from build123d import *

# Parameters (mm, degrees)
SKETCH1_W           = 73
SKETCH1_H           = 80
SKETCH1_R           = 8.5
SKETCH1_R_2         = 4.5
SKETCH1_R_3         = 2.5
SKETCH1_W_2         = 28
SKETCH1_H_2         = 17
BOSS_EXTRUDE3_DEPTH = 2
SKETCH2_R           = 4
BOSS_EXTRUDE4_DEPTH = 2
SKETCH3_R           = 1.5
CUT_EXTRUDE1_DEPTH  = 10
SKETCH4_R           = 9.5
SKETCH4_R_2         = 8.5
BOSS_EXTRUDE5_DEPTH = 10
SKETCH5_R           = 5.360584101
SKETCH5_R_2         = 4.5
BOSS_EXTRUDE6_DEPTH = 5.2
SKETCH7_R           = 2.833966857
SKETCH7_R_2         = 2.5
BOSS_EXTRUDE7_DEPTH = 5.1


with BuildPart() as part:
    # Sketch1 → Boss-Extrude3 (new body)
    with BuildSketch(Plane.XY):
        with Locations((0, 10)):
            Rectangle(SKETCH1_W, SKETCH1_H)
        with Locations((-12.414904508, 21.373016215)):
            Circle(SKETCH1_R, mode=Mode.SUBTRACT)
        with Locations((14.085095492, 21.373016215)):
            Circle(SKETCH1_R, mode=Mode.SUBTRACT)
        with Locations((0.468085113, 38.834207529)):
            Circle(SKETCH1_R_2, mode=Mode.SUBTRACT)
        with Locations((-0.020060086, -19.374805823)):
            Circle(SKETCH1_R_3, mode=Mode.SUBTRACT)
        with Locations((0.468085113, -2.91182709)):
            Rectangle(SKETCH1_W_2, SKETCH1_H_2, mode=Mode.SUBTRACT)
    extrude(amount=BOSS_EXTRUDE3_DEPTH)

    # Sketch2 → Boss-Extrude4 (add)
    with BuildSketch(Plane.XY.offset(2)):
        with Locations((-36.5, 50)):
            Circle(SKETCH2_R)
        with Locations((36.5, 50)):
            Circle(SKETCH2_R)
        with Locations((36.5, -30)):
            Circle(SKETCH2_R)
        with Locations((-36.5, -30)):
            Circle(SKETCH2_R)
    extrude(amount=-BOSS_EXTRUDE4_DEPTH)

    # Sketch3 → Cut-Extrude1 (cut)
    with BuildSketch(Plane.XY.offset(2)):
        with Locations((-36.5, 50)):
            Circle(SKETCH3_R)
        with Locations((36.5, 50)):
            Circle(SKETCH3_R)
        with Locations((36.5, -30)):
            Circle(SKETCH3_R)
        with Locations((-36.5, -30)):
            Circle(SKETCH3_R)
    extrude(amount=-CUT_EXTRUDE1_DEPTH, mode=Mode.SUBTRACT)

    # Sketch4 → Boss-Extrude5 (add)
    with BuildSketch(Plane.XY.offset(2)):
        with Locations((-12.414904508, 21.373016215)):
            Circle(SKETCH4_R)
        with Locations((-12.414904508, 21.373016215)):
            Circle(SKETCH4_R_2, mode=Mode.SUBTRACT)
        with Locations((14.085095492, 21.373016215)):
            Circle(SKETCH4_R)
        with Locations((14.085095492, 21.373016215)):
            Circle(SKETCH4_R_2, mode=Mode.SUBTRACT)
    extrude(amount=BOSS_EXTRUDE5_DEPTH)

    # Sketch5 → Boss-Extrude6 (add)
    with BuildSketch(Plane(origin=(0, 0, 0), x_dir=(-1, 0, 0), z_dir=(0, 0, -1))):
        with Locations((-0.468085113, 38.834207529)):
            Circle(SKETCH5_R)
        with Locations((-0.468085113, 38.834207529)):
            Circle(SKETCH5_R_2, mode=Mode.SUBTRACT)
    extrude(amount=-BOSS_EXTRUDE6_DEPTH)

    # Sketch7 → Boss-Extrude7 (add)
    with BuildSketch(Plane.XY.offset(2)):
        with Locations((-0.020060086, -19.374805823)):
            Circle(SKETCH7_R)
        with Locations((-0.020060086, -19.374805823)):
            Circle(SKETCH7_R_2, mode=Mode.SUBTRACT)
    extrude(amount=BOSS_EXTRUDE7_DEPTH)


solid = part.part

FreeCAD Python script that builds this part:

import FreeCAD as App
import Part
import Sketcher
Q = App.Units.Quantity

doc = App.newDocument("Part")
body = doc.addObject("PartDesign::Body", "Body")

# Sketch on XY plane
sketch1 = doc.addObject("Sketcher::SketchObject", "Sketch")
body.addObject(sketch1)
sketch1.AttachmentSupport = (doc.XY_Plane, [""])
sketch1.MapMode = "FlatFace"
sketch1.addGeometry(Part.LineSegment(App.Vector(-36.5, 50, 0), App.Vector(-36.5, -30, 0)), False)
sketch1.addGeometry(Part.LineSegment(App.Vector(-36.5, -30, 0), App.Vector(36.5, -30, 0)), False)
sketch1.addGeometry(Part.LineSegment(App.Vector(36.5, -30, 0), App.Vector(36.5, 50, 0)), False)
sketch1.addGeometry(Part.LineSegment(App.Vector(36.5, 50, 0), App.Vector(-36.5, 50, 0)), False)
sketch1.addGeometry(Part.Circle(App.Vector(-0.02006, -19.374806, 0), App.Vector(0, 0, 1), 2.5), False)
sketch1.addGeometry(Part.LineSegment(App.Vector(14.468085, -11.411827, 0), App.Vector(-13.531915, -11.411827, 0)), False)
sketch1.addGeometry(Part.LineSegment(App.Vector(-13.531915, -11.411827, 0), App.Vector(-13.531915, 5.588173, 0)), False)
sketch1.addGeometry(Part.LineSegment(App.Vector(-13.531915, 5.588173, 0), App.Vector(14.468085, 5.588173, 0)), False)
sketch1.addGeometry(Part.LineSegment(App.Vector(14.468085, 5.588173, 0), App.Vector(14.468085, -11.411827, 0)), False)
sketch1.addGeometry(Part.Circle(App.Vector(-12.414905, 21.373016, 0), App.Vector(0, 0, 1), 8.5), False)
sketch1.addGeometry(Part.Circle(App.Vector(0.468085, 38.834208, 0), App.Vector(0, 0, 1), 4.5), False)
sketch1.addGeometry(Part.Circle(App.Vector(14.085095, 21.373016, 0), App.Vector(0, 0, 1), 8.5), False)
sketch1.addConstraint(Sketcher.Constraint("Coincident", 0, 2, 1, 1))
sketch1.addConstraint(Sketcher.Constraint("Coincident", 1, 2, 2, 1))
sketch1.addConstraint(Sketcher.Constraint("Coincident", 2, 2, 3, 1))
sketch1.addConstraint(Sketcher.Constraint("Coincident", 3, 2, 0, 1))
sketch1.addConstraint(Sketcher.Constraint("Coincident", 5, 2, 6, 1))
sketch1.addConstraint(Sketcher.Constraint("Coincident", 6, 2, 7, 1))
sketch1.addConstraint(Sketcher.Constraint("Coincident", 7, 2, 8, 1))
sketch1.addConstraint(Sketcher.Constraint("Coincident", 8, 2, 5, 1))
sketch1.addConstraint(Sketcher.Constraint("Vertical", 0))
sketch1.addConstraint(Sketcher.Constraint("Horizontal", 1))
sketch1.addConstraint(Sketcher.Constraint("Vertical", 2))
sketch1.addConstraint(Sketcher.Constraint("Horizontal", 3))
sketch1.addConstraint(Sketcher.Constraint("Horizontal", 5))
sketch1.addConstraint(Sketcher.Constraint("Vertical", 6))
sketch1.addConstraint(Sketcher.Constraint("Horizontal", 7))
sketch1.addConstraint(Sketcher.Constraint("Vertical", 8))
sketch1.addConstraint(Sketcher.Constraint("Equal", 9, 11))
sketch1.addConstraint(Sketcher.Constraint("Horizontal", 9, 3, 11, 3))
sketch1.addConstraint(Sketcher.Constraint("Diameter", 4, Q("5 mm")))
sketch1.addConstraint(Sketcher.Constraint("Diameter", 9, Q("17 mm")))
sketch1.addConstraint(Sketcher.Constraint("Diameter", 10, Q("9 mm")))
sketch1.addConstraint(Sketcher.Constraint("DistanceX", 1, 1, 1, 2, Q("73 mm")))
sketch1.addConstraint(Sketcher.Constraint("DistanceX", 5, 2, 5, 1, Q("28 mm")))
sketch1.addConstraint(Sketcher.Constraint("DistanceY", 0, 2, 0, 1, Q("80 mm")))
sketch1.addConstraint(Sketcher.Constraint("DistanceY", 6, 1, 6, 2, Q("17 mm")))
sketch1.addConstraint(Sketcher.Constraint("DistanceY", 0, 2, -1, 1, Q("30 mm")))
sketch1.addConstraint(Sketcher.Constraint("DistanceX", 5, 2, 10, 3, Q("14 mm")))
sketch1.addConstraint(Sketcher.Constraint("DistanceX", 0, 2, -1, 1, Q("36.5 mm")))
sketch1.addConstraint(Sketcher.Constraint("DistanceX", 9, 3, 11, 3, Q("26.5 mm")))
sketch1.addConstraint(Sketcher.Constraint("DistanceX", 4, 3, -1, 1, Q("0.02006 mm")))
sketch1.addConstraint(Sketcher.Constraint("DistanceX", 9, 3, 10, 3, Q("12.88299 mm")))
sketch1.addConstraint(Sketcher.Constraint("DistanceY", 9, 3, 10, 3, Q("17.461191 mm")))
sketch1.addConstraint(Sketcher.Constraint("DistanceY", 4, 3, 5, 2, Q("7.962979 mm")))
sketch1.addConstraint(Sketcher.Constraint("DistanceY", 4, 3, -1, 1, Q("19.374806 mm")))
sketch1.addConstraint(Sketcher.Constraint("DistanceX", 9, 3, -1, 1, Q("12.414905 mm")))
sketch1.addConstraint(Sketcher.Constraint("DistanceY", -1, 1, 9, 3, Q("21.373016 mm")))
pad1 = doc.addObject("PartDesign::Pad", "Pad")
body.addObject(pad1)
pad1.Profile = sketch1
pad1.Length = 2

# Sketch on XY plane
sketch2 = doc.addObject("Sketcher::SketchObject", "Sketch001")
body.addObject(sketch2)
sketch2.AttachmentSupport = (doc.XY_Plane, [""])
sketch2.MapMode = "FlatFace"
sketch2.AttachmentOffset = App.Placement(App.Vector(0, 0, 2), App.Rotation())
sketch2.addGeometry(Part.Circle(App.Vector(-36.5, 50, 0), App.Vector(0, 0, 1), 4), False)
sketch2.addGeometry(Part.Circle(App.Vector(36.5, 50, 0), App.Vector(0, 0, 1), 4), False)
sketch2.addGeometry(Part.Circle(App.Vector(36.5, -30, 0), App.Vector(0, 0, 1), 4), False)
sketch2.addGeometry(Part.Circle(App.Vector(-36.5, -30, 0), App.Vector(0, 0, 1), 4), False)
sketch2.addConstraint(Sketcher.Constraint("Equal", 0, 1))
sketch2.addConstraint(Sketcher.Constraint("Equal", 1, 2))
sketch2.addConstraint(Sketcher.Constraint("Equal", 2, 3))
sketch2.addConstraint(Sketcher.Constraint("Symmetric", 0, 3, 1, 3, -2))
sketch2.addConstraint(Sketcher.Constraint("Symmetric", 2, 3, 3, 3, -2))
sketch2.addConstraint(Sketcher.Constraint("Vertical", 1, 3, 2, 3))
sketch2.addConstraint(Sketcher.Constraint("Diameter", 0, Q("8 mm")))
sketch2.addConstraint(Sketcher.Constraint("DistanceY", -1, 1, 0, 3, Q("50 mm")))
sketch2.addConstraint(Sketcher.Constraint("DistanceY", 2, 3, -1, 1, Q("30 mm")))
sketch2.addConstraint(Sketcher.Constraint("DistanceX", 0, 3, 1, 3, Q("73 mm")))
pad2 = doc.addObject("PartDesign::Pad", "Pad001")
body.addObject(pad2)
pad2.Profile = sketch2
pad2.Length = 2
pad2.Reversed = True

# Sketch on XY plane
sketch3 = doc.addObject("Sketcher::SketchObject", "Sketch002")
body.addObject(sketch3)
sketch3.AttachmentSupport = (doc.XY_Plane, [""])
sketch3.MapMode = "FlatFace"
sketch3.AttachmentOffset = App.Placement(App.Vector(0, 0, 2), App.Rotation())
sketch3.addGeometry(Part.Circle(App.Vector(-36.5, 50, 0), App.Vector(0, 0, 1), 1.5), False)
sketch3.addGeometry(Part.Circle(App.Vector(36.5, 50, 0), App.Vector(0, 0, 1), 1.5), False)
sketch3.addGeometry(Part.Circle(App.Vector(36.5, -30, 0), App.Vector(0, 0, 1), 1.5), False)
sketch3.addGeometry(Part.Circle(App.Vector(-36.5, -30, 0), App.Vector(0, 0, 1), 1.5), False)
sketch3.addConstraint(Sketcher.Constraint("Equal", 0, 1))
sketch3.addConstraint(Sketcher.Constraint("Equal", 1, 2))
sketch3.addConstraint(Sketcher.Constraint("Equal", 2, 3))
sketch3.addConstraint(Sketcher.Constraint("Symmetric", 0, 3, 1, 3, -2))
sketch3.addConstraint(Sketcher.Constraint("Symmetric", 2, 3, 3, 3, -2))
sketch3.addConstraint(Sketcher.Constraint("Vertical", 1, 3, 2, 3))
sketch3.addConstraint(Sketcher.Constraint("Diameter", 0, Q("3 mm")))
sketch3.addConstraint(Sketcher.Constraint("DistanceY", -1, 1, 0, 3, Q("50 mm")))
sketch3.addConstraint(Sketcher.Constraint("DistanceY", 2, 3, -1, 1, Q("30 mm")))
sketch3.addConstraint(Sketcher.Constraint("DistanceX", 0, 3, 1, 3, Q("73 mm")))
pocket1 = doc.addObject("PartDesign::Pocket", "Pocket")
body.addObject(pocket1)
pocket1.Profile = sketch3
pocket1.Length = 10

# Sketch on XY plane
sketch4 = doc.addObject("Sketcher::SketchObject", "Sketch003")
body.addObject(sketch4)
sketch4.AttachmentSupport = (doc.XY_Plane, [""])
sketch4.MapMode = "FlatFace"
sketch4.AttachmentOffset = App.Placement(App.Vector(0, 0, 2), App.Rotation())
sketch4.addGeometry(Part.Circle(App.Vector(-12.414905, 21.373016, 0), App.Vector(0, 0, 1), 9.5), False)
sketch4.addGeometry(Part.Circle(App.Vector(-12.414905, 21.373016, 0), App.Vector(0, 0, 1), 8.5), False)
sketch4.addGeometry(Part.Circle(App.Vector(14.085095, 21.373016, 0), App.Vector(0, 0, 1), 9.5), False)
sketch4.addGeometry(Part.Circle(App.Vector(14.085095, 21.373016, 0), App.Vector(0, 0, 1), 8.5), False)
sketch4.addConstraint(Sketcher.Constraint("Coincident", 1, 3, 0, 3))
sketch4.addConstraint(Sketcher.Constraint("Coincident", 3, 3, 2, 3))
sketch4.addConstraint(Sketcher.Constraint("Equal", 0, 2))
sketch4.addConstraint(Sketcher.Constraint("Equal", 1, 3))
sketch4.addConstraint(Sketcher.Constraint("Horizontal", 1, 3, 2, 3))
sketch4.addConstraint(Sketcher.Constraint("Diameter", 0, Q("19 mm")))
sketch4.addConstraint(Sketcher.Constraint("Diameter", 1, Q("17 mm")))
sketch4.addConstraint(Sketcher.Constraint("DistanceX", 0, 3, 2, 3, Q("26.5 mm")))
sketch4.addConstraint(Sketcher.Constraint("DistanceX", 0, 3, -1, 1, Q("12.414905 mm")))
sketch4.addConstraint(Sketcher.Constraint("DistanceY", -1, 1, 0, 3, Q("21.373016 mm")))
pad3 = doc.addObject("PartDesign::Pad", "Pad002")
body.addObject(pad3)
pad3.Profile = sketch4
pad3.Length = 10

# Sketch on XY plane
sketch5 = doc.addObject("Sketcher::SketchObject", "Sketch004")
body.addObject(sketch5)
sketch5.AttachmentSupport = (doc.XY_Plane, [""])
sketch5.MapMode = "FlatFace"
sketch5.addGeometry(Part.Circle(App.Vector(0.468085, 38.834208, 0), App.Vector(0, 0, 1), 5.360584), False)
sketch5.addGeometry(Part.Circle(App.Vector(0.468085, 38.834208, 0), App.Vector(0, 0, 1), 4.5), False)
sketch5.addConstraint(Sketcher.Constraint("Coincident", 1, 3, 0, 3))
sketch5.addConstraint(Sketcher.Constraint("Diameter", 1, Q("9 mm")))
sketch5.addConstraint(Sketcher.Constraint("Diameter", 0, Q("10.721168 mm")))
sketch5.addConstraint(Sketcher.Constraint("DistanceX", -1, 1, 0, 3, Q("0.468085 mm")))
sketch5.addConstraint(Sketcher.Constraint("DistanceY", -1, 1, 0, 3, Q("38.834208 mm")))
pad4 = doc.addObject("PartDesign::Pad", "Pad003")
body.addObject(pad4)
pad4.Profile = sketch5
pad4.Length = 5.2

# Sketch on XY plane
sketch6 = doc.addObject("Sketcher::SketchObject", "Sketch005")
body.addObject(sketch6)
sketch6.AttachmentSupport = (doc.XY_Plane, [""])
sketch6.MapMode = "FlatFace"
sketch6.AttachmentOffset = App.Placement(App.Vector(0, 0, 2), App.Rotation())
sketch6.addGeometry(Part.Circle(App.Vector(-0.02006, -19.374806, 0), App.Vector(0, 0, 1), 2.833967), False)
sketch6.addGeometry(Part.Circle(App.Vector(-0.02006, -19.374806, 0), App.Vector(0, 0, 1), 2.5), False)
sketch6.addConstraint(Sketcher.Constraint("Coincident", 1, 3, 0, 3))
sketch6.addConstraint(Sketcher.Constraint("Diameter", 1, Q("5 mm")))
sketch6.addConstraint(Sketcher.Constraint("Diameter", 0, Q("5.667934 mm")))
sketch6.addConstraint(Sketcher.Constraint("DistanceX", 0, 3, -1, 1, Q("0.02006 mm")))
sketch6.addConstraint(Sketcher.Constraint("DistanceY", 0, 3, -1, 1, Q("19.374806 mm")))
pad5 = doc.addObject("PartDesign::Pad", "Pad004")
body.addObject(pad5)
pad5.Profile = sketch6
pad5.Length = 5.1

doc.recompute()
